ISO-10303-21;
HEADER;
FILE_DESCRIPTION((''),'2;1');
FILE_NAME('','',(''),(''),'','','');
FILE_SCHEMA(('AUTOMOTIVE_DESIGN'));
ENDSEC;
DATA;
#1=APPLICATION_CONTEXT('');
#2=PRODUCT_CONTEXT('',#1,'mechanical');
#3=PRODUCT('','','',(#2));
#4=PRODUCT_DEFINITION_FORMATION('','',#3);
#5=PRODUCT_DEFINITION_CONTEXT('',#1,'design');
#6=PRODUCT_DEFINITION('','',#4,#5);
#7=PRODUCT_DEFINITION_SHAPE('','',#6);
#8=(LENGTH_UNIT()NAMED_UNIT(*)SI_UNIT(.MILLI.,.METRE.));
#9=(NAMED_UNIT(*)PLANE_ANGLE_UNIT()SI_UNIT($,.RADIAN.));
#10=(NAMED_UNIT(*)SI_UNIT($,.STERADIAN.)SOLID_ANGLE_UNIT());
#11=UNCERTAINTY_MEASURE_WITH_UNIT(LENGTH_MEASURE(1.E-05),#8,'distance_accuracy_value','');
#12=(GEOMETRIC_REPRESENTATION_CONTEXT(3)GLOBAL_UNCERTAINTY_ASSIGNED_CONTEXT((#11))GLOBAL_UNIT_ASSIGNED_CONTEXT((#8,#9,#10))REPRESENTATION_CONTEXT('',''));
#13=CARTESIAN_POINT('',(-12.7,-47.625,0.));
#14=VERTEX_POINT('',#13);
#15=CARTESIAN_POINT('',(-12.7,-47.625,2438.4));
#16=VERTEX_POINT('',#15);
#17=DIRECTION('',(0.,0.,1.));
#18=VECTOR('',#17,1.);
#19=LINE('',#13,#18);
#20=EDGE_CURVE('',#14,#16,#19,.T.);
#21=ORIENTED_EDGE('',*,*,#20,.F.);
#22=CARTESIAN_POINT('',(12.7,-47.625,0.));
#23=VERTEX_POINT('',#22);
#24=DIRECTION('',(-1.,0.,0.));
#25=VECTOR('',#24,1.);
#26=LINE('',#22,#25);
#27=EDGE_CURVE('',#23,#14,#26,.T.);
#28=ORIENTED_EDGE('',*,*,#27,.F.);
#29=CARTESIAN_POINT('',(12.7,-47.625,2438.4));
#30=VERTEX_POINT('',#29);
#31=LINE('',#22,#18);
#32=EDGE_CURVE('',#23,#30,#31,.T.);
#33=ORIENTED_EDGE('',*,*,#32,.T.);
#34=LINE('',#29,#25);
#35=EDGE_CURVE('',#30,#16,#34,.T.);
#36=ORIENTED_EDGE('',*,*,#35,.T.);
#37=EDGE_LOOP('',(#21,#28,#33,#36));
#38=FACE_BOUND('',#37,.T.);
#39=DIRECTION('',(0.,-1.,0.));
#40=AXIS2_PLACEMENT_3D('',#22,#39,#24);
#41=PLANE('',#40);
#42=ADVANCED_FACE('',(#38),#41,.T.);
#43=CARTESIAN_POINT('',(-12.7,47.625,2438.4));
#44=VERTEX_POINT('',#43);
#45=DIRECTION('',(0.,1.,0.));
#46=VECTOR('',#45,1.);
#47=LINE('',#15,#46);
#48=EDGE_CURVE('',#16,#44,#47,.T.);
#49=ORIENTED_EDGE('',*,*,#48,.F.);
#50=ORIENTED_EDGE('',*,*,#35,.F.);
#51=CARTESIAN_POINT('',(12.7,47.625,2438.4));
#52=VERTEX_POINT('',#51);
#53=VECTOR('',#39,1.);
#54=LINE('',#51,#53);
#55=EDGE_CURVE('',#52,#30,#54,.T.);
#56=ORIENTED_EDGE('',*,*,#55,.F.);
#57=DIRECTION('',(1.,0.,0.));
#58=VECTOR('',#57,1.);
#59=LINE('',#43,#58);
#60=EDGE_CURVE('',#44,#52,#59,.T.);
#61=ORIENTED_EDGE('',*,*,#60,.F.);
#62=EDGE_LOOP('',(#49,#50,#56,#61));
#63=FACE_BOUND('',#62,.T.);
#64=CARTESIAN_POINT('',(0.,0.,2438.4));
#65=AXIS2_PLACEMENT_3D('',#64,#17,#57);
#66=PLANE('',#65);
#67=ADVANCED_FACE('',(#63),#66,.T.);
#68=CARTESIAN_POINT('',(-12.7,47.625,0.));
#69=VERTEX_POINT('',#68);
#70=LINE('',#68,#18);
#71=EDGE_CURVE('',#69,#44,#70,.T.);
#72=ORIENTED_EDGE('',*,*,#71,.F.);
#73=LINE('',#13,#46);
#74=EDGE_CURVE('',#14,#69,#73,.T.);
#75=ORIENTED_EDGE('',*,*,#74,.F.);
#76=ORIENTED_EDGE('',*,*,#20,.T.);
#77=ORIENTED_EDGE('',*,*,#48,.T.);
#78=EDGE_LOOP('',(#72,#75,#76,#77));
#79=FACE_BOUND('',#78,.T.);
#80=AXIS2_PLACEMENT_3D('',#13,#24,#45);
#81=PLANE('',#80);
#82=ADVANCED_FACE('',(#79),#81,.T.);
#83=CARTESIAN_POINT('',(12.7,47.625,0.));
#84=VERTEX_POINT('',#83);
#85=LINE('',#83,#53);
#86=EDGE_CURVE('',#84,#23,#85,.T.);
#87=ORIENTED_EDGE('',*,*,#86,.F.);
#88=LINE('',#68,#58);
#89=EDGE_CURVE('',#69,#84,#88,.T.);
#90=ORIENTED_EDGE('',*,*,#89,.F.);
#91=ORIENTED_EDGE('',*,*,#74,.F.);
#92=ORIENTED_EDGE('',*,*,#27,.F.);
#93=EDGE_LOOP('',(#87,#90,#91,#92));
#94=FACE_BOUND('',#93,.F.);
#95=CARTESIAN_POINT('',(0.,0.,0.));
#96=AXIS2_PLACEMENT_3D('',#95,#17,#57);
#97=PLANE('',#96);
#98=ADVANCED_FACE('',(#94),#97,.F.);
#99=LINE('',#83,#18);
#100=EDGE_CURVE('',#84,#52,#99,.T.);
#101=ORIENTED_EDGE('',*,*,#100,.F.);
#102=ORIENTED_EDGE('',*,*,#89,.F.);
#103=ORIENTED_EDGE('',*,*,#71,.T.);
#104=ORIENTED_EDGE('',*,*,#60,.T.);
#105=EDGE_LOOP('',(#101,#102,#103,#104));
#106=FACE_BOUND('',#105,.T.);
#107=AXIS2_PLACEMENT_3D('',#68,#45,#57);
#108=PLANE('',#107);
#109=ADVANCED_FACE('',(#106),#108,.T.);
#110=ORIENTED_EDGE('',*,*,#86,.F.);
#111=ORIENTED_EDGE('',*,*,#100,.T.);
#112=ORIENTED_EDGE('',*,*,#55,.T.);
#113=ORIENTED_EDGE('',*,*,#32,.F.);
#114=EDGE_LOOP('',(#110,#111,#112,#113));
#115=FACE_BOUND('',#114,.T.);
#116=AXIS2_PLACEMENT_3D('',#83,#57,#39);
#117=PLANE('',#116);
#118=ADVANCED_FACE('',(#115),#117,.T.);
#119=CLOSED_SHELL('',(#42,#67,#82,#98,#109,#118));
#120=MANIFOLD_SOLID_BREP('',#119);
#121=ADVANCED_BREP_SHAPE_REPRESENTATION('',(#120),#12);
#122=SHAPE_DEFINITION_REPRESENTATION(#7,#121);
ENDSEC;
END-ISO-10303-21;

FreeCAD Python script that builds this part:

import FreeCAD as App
import Part
import Sketcher

V = App.Vector
Q = App.Units.Quantity

doc = App.newDocument("Part")
body = doc.addObject("PartDesign::Body", "Body")

sketch1 = body.newObject("Sketcher::SketchObject", "Sketch")
sketch1.AttachmentSupport = (doc.getObject("XY_Plane"), [""])
sketch1.MapMode = "FlatFace"
sketch1.addGeometry([
    Part.LineSegment(V(-12.7, -47.625, 0), V(12.7, -47.625, 0)),
    Part.LineSegment(V(12.7, -47.625, 0), V(12.7, 47.625, 0)),
    Part.LineSegment(V(12.7, 47.625, 0), V(-12.7, 47.625, 0)),
    Part.LineSegment(V(-12.7, 47.625, 0), V(-12.7, -47.625, 0)),
], False)
sketch1.addConstraint([
    Sketcher.Constraint("Coincident", 0, 2, 1, 1),
    Sketcher.Constraint("Coincident", 1, 2, 2, 1),
    Sketcher.Constraint("Coincident", 2, 2, 3, 1),
    Sketcher.Constraint("Coincident", 3, 2, 0, 1),
    Sketcher.Constraint("Horizontal", 0),
    Sketcher.Constraint("Vertical", 1),
    Sketcher.Constraint("Horizontal", 2),
    Sketcher.Constraint("Vertical", 3),
    Sketcher.Constraint("Symmetric", 0, 2, 2, 2, -1, 1),
    Sketcher.Constraint("DistanceX", 0, 1, 0, 2, Q("1 in")),
    Sketcher.Constraint("DistanceY", 1, 1, 1, 2, Q("3.75 in")),
])
pad1 = body.newObject("PartDesign::Pad", "Pad")
pad1.Profile = sketch1
pad1.Length = Q("96 in")

doc.recompute()
